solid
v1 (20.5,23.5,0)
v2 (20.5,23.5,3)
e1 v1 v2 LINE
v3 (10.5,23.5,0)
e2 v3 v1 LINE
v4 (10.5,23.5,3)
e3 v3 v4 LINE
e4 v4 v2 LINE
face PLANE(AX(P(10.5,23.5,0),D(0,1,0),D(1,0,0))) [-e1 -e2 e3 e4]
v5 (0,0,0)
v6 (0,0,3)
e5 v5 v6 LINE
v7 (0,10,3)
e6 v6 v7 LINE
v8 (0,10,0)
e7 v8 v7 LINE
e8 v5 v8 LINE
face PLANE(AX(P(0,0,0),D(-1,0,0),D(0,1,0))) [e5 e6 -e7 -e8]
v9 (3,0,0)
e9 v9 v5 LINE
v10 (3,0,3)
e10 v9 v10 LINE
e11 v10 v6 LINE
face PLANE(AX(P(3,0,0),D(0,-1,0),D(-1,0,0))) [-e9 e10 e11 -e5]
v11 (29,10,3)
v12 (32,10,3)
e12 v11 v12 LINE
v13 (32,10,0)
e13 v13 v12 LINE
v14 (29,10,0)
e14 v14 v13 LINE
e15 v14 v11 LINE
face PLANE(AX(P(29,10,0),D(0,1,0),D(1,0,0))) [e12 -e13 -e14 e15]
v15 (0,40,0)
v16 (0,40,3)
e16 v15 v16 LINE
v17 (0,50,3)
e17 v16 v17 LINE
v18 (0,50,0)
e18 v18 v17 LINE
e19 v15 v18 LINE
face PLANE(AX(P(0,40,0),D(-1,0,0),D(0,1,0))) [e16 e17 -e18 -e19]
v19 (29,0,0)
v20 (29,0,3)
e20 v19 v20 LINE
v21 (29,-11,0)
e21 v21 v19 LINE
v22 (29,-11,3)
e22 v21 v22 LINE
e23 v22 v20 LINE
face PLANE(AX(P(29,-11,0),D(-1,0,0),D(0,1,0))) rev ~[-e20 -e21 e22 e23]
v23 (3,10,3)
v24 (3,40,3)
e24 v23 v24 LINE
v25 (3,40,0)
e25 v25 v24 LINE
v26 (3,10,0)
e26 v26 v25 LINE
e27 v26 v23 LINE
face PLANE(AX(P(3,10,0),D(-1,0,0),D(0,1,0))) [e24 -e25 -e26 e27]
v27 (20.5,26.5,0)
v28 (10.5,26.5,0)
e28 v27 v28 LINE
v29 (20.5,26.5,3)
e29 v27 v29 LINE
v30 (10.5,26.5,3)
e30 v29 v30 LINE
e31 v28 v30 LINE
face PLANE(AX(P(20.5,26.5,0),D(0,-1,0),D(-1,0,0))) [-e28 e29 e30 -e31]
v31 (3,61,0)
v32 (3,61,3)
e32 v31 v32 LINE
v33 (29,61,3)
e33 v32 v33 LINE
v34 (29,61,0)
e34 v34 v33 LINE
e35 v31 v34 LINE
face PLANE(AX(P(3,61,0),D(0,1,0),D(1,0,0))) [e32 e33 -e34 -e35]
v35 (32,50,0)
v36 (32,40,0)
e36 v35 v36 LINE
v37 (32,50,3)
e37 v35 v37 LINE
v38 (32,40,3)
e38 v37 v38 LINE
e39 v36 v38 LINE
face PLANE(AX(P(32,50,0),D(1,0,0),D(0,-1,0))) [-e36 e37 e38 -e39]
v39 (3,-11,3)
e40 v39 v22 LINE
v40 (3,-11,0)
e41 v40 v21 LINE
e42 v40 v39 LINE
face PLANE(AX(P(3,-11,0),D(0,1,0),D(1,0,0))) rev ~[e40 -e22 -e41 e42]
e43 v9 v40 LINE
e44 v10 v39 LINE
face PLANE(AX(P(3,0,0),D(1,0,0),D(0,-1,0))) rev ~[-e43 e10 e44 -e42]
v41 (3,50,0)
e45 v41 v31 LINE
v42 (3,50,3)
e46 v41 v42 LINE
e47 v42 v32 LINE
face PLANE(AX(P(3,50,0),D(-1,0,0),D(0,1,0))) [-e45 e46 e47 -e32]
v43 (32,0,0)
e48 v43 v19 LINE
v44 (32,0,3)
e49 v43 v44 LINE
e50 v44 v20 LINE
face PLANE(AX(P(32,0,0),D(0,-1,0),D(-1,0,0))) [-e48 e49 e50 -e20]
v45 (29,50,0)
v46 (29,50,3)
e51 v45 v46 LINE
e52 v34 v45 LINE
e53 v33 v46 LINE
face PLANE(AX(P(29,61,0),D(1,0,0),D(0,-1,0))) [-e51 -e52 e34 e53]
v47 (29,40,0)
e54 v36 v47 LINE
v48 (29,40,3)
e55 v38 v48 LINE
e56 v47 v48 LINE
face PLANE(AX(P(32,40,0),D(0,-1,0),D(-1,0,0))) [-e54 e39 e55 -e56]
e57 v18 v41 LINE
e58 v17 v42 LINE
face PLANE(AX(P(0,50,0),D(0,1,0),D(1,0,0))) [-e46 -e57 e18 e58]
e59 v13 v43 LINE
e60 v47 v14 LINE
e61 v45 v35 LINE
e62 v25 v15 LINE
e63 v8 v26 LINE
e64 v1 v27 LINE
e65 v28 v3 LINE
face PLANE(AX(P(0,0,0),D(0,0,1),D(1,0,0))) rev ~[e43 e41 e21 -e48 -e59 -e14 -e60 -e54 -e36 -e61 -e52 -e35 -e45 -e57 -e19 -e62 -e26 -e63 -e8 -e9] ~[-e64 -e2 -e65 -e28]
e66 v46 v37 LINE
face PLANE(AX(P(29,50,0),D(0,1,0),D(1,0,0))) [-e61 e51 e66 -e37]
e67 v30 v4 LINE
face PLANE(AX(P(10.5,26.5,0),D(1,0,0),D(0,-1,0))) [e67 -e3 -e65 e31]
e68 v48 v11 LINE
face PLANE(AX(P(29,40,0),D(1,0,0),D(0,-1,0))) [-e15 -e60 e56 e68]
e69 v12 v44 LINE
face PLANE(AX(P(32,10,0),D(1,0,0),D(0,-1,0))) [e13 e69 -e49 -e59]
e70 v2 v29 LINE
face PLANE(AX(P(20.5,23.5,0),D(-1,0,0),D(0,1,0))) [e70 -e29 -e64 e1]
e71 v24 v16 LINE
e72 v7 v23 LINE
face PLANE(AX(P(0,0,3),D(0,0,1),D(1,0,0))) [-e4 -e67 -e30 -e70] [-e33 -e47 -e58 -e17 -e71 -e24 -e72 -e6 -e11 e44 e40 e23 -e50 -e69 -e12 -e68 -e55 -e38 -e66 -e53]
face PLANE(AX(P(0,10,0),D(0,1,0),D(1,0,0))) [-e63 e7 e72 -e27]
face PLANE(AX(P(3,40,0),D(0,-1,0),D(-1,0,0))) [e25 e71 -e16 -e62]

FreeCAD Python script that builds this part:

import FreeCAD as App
import Part
import Sketcher

V = App.Vector


def add_polygon(sketch, points):
    """Adds a closed chain of lines whose ends are joined by coincident constraints."""
    first, n = sketch.GeometryCount, len(points)
    for a, b in zip(points, points[1:] + points[:1]):
        sketch.addGeometry(Part.LineSegment(App.Vector(*a, 0), App.Vector(*b, 0)), False)
    for i in range(n):
        sketch.addConstraint(Sketcher.Constraint("Coincident", first + i, 2, first + (i + 1) % n, 1))

doc = App.newDocument("Part")
body = doc.addObject("PartDesign::Body", "Body")

# Sketch on XY plane
sketch1 = doc.addObject("Sketcher::SketchObject", "Sketch")
body.addObject(sketch1)
sketch1.AttachmentSupport = (doc.XY_Plane, [""])
sketch1.MapMode = "FlatFace"
add_polygon(sketch1, [(0, 10), (0, 0), (3, 0), (3, -11), (29, -11), (29, 0), (32, 0), (32, 10), (29, 10), (29, 40), (32, 40), (32, 50), (29, 50), (29, 61), (3, 61), (3, 50), (0, 50), (0, 40), (3, 40), (3, 10)])  # lines 0-19
add_polygon(sketch1, [(20.5, 23.5), (10.5, 23.5), (10.5, 26.5), (20.5, 26.5)])  # lines 20-23
sketch1.addConstraint(Sketcher.Constraint("Vertical", 0))
sketch1.addConstraint(Sketcher.Constraint("Horizontal", 1))
sketch1.addConstraint(Sketcher.Constraint("Vertical", 2))
sketch1.addConstraint(Sketcher.Constraint("Horizontal", 3))
sketch1.addConstraint(Sketcher.Constraint("Vertical", 4))
sketch1.addConstraint(Sketcher.Constraint("Horizontal", 5))
sketch1.addConstraint(Sketcher.Constraint("Vertical", 6))
sketch1.addConstraint(Sketcher.Constraint("Horizontal", 7))
sketch1.addConstraint(Sketcher.Constraint("Vertical", 8))
sketch1.addConstraint(Sketcher.Constraint("Horizontal", 9))
sketch1.addConstraint(Sketcher.Constraint("Vertical", 10))
sketch1.addConstraint(Sketcher.Constraint("Horizontal", 11))
sketch1.addConstraint(Sketcher.Constraint("Vertical", 12))
sketch1.addConstraint(Sketcher.Constraint("Horizontal", 13))
sketch1.addConstraint(Sketcher.Constraint("Vertical", 14))
sketch1.addConstraint(Sketcher.Constraint("Horizontal", 15))
sketch1.addConstraint(Sketcher.Constraint("Vertical", 16))
sketch1.addConstraint(Sketcher.Constraint("Horizontal", 17))
sketch1.addConstraint(Sketcher.Constraint("Vertical", 18))
sketch1.addConstraint(Sketcher.Constraint("Horizontal", 19))
sketch1.addConstraint(Sketcher.Constraint("Horizontal", 20))
sketch1.addConstraint(Sketcher.Constraint("Vertical", 21))
sketch1.addConstraint(Sketcher.Constraint("Horizontal", 22))
sketch1.addConstraint(Sketcher.Constraint("Vertical", 23))
sketch1.addConstraint(Sketcher.Constraint("Coincident", 0, 2, -1, 1))
sketch1.addConstraint(Sketcher.Constraint("PointOnObject", 4, 2, -1))
sketch1.addConstraint(Sketcher.Constraint("PointOnObject", 15, 2, -2))
sketch1.addConstraint(Sketcher.Constraint("Horizontal", 11, 2, 14, 2))
sketch1.addConstraint(Sketcher.Constraint("Horizontal", 9, 2, 16, 2))
sketch1.addConstraint(Sketcher.Constraint("Horizontal", 7, 2, 18, 2))
sketch1.addConstraint(Sketcher.Constraint("Vertical", 4, 2, 7, 2))
sketch1.addConstraint(Sketcher.Constraint("Vertical", 6, 2, 9, 2))
sketch1.addConstraint(Sketcher.Constraint("Vertical", 8, 2, 11, 2))
sketch1.addConstraint(Sketcher.Constraint("Vertical", 2, 2, 13, 2))
sketch1.addConstraint(Sketcher.Constraint("Vertical", 14, 2, 17, 2))
sketch1.addConstraint(Sketcher.Constraint("Equal", 1, 5))
sketch1.addConstraint(Sketcher.Constraint("Equal", 22, 0))
sketch1.addConstraint(Sketcher.Constraint("Equal", 6, 10))
sketch1.addConstraint(Sketcher.Constraint("Equal", 4, 12))
sketch1.addConstraint(Sketcher.Constraint("Equal", 19, 21))
sketch1.addConstraint(Sketcher.Constraint("DistanceX", 1, 1, 1, 2, 3.0))
sketch1.addConstraint(Sketcher.Constraint("DistanceX", 3, 1, 3, 2, 26.0))
sketch1.addConstraint(Sketcher.Constraint("DistanceX", 20, 2, 20, 1, 10.0))
sketch1.addConstraint(Sketcher.Constraint("DistanceY", 2, 2, 2, 1, 11.0))
sketch1.addConstraint(Sketcher.Constraint("DistanceY", 8, 1, 8, 2, 30.0))
sketch1.addConstraint(Sketcher.Constraint("DistanceX", 18, 2, 20, 2, 7.5))
sketch1.addConstraint(Sketcher.Constraint("DistanceY", -1, 1, 20, 2, 23.5))
pad1 = doc.addObject("PartDesign::Pad", "Pad")
body.addObject(pad1)
pad1.Profile = sketch1
pad1.Length = 3

doc.recompute()
